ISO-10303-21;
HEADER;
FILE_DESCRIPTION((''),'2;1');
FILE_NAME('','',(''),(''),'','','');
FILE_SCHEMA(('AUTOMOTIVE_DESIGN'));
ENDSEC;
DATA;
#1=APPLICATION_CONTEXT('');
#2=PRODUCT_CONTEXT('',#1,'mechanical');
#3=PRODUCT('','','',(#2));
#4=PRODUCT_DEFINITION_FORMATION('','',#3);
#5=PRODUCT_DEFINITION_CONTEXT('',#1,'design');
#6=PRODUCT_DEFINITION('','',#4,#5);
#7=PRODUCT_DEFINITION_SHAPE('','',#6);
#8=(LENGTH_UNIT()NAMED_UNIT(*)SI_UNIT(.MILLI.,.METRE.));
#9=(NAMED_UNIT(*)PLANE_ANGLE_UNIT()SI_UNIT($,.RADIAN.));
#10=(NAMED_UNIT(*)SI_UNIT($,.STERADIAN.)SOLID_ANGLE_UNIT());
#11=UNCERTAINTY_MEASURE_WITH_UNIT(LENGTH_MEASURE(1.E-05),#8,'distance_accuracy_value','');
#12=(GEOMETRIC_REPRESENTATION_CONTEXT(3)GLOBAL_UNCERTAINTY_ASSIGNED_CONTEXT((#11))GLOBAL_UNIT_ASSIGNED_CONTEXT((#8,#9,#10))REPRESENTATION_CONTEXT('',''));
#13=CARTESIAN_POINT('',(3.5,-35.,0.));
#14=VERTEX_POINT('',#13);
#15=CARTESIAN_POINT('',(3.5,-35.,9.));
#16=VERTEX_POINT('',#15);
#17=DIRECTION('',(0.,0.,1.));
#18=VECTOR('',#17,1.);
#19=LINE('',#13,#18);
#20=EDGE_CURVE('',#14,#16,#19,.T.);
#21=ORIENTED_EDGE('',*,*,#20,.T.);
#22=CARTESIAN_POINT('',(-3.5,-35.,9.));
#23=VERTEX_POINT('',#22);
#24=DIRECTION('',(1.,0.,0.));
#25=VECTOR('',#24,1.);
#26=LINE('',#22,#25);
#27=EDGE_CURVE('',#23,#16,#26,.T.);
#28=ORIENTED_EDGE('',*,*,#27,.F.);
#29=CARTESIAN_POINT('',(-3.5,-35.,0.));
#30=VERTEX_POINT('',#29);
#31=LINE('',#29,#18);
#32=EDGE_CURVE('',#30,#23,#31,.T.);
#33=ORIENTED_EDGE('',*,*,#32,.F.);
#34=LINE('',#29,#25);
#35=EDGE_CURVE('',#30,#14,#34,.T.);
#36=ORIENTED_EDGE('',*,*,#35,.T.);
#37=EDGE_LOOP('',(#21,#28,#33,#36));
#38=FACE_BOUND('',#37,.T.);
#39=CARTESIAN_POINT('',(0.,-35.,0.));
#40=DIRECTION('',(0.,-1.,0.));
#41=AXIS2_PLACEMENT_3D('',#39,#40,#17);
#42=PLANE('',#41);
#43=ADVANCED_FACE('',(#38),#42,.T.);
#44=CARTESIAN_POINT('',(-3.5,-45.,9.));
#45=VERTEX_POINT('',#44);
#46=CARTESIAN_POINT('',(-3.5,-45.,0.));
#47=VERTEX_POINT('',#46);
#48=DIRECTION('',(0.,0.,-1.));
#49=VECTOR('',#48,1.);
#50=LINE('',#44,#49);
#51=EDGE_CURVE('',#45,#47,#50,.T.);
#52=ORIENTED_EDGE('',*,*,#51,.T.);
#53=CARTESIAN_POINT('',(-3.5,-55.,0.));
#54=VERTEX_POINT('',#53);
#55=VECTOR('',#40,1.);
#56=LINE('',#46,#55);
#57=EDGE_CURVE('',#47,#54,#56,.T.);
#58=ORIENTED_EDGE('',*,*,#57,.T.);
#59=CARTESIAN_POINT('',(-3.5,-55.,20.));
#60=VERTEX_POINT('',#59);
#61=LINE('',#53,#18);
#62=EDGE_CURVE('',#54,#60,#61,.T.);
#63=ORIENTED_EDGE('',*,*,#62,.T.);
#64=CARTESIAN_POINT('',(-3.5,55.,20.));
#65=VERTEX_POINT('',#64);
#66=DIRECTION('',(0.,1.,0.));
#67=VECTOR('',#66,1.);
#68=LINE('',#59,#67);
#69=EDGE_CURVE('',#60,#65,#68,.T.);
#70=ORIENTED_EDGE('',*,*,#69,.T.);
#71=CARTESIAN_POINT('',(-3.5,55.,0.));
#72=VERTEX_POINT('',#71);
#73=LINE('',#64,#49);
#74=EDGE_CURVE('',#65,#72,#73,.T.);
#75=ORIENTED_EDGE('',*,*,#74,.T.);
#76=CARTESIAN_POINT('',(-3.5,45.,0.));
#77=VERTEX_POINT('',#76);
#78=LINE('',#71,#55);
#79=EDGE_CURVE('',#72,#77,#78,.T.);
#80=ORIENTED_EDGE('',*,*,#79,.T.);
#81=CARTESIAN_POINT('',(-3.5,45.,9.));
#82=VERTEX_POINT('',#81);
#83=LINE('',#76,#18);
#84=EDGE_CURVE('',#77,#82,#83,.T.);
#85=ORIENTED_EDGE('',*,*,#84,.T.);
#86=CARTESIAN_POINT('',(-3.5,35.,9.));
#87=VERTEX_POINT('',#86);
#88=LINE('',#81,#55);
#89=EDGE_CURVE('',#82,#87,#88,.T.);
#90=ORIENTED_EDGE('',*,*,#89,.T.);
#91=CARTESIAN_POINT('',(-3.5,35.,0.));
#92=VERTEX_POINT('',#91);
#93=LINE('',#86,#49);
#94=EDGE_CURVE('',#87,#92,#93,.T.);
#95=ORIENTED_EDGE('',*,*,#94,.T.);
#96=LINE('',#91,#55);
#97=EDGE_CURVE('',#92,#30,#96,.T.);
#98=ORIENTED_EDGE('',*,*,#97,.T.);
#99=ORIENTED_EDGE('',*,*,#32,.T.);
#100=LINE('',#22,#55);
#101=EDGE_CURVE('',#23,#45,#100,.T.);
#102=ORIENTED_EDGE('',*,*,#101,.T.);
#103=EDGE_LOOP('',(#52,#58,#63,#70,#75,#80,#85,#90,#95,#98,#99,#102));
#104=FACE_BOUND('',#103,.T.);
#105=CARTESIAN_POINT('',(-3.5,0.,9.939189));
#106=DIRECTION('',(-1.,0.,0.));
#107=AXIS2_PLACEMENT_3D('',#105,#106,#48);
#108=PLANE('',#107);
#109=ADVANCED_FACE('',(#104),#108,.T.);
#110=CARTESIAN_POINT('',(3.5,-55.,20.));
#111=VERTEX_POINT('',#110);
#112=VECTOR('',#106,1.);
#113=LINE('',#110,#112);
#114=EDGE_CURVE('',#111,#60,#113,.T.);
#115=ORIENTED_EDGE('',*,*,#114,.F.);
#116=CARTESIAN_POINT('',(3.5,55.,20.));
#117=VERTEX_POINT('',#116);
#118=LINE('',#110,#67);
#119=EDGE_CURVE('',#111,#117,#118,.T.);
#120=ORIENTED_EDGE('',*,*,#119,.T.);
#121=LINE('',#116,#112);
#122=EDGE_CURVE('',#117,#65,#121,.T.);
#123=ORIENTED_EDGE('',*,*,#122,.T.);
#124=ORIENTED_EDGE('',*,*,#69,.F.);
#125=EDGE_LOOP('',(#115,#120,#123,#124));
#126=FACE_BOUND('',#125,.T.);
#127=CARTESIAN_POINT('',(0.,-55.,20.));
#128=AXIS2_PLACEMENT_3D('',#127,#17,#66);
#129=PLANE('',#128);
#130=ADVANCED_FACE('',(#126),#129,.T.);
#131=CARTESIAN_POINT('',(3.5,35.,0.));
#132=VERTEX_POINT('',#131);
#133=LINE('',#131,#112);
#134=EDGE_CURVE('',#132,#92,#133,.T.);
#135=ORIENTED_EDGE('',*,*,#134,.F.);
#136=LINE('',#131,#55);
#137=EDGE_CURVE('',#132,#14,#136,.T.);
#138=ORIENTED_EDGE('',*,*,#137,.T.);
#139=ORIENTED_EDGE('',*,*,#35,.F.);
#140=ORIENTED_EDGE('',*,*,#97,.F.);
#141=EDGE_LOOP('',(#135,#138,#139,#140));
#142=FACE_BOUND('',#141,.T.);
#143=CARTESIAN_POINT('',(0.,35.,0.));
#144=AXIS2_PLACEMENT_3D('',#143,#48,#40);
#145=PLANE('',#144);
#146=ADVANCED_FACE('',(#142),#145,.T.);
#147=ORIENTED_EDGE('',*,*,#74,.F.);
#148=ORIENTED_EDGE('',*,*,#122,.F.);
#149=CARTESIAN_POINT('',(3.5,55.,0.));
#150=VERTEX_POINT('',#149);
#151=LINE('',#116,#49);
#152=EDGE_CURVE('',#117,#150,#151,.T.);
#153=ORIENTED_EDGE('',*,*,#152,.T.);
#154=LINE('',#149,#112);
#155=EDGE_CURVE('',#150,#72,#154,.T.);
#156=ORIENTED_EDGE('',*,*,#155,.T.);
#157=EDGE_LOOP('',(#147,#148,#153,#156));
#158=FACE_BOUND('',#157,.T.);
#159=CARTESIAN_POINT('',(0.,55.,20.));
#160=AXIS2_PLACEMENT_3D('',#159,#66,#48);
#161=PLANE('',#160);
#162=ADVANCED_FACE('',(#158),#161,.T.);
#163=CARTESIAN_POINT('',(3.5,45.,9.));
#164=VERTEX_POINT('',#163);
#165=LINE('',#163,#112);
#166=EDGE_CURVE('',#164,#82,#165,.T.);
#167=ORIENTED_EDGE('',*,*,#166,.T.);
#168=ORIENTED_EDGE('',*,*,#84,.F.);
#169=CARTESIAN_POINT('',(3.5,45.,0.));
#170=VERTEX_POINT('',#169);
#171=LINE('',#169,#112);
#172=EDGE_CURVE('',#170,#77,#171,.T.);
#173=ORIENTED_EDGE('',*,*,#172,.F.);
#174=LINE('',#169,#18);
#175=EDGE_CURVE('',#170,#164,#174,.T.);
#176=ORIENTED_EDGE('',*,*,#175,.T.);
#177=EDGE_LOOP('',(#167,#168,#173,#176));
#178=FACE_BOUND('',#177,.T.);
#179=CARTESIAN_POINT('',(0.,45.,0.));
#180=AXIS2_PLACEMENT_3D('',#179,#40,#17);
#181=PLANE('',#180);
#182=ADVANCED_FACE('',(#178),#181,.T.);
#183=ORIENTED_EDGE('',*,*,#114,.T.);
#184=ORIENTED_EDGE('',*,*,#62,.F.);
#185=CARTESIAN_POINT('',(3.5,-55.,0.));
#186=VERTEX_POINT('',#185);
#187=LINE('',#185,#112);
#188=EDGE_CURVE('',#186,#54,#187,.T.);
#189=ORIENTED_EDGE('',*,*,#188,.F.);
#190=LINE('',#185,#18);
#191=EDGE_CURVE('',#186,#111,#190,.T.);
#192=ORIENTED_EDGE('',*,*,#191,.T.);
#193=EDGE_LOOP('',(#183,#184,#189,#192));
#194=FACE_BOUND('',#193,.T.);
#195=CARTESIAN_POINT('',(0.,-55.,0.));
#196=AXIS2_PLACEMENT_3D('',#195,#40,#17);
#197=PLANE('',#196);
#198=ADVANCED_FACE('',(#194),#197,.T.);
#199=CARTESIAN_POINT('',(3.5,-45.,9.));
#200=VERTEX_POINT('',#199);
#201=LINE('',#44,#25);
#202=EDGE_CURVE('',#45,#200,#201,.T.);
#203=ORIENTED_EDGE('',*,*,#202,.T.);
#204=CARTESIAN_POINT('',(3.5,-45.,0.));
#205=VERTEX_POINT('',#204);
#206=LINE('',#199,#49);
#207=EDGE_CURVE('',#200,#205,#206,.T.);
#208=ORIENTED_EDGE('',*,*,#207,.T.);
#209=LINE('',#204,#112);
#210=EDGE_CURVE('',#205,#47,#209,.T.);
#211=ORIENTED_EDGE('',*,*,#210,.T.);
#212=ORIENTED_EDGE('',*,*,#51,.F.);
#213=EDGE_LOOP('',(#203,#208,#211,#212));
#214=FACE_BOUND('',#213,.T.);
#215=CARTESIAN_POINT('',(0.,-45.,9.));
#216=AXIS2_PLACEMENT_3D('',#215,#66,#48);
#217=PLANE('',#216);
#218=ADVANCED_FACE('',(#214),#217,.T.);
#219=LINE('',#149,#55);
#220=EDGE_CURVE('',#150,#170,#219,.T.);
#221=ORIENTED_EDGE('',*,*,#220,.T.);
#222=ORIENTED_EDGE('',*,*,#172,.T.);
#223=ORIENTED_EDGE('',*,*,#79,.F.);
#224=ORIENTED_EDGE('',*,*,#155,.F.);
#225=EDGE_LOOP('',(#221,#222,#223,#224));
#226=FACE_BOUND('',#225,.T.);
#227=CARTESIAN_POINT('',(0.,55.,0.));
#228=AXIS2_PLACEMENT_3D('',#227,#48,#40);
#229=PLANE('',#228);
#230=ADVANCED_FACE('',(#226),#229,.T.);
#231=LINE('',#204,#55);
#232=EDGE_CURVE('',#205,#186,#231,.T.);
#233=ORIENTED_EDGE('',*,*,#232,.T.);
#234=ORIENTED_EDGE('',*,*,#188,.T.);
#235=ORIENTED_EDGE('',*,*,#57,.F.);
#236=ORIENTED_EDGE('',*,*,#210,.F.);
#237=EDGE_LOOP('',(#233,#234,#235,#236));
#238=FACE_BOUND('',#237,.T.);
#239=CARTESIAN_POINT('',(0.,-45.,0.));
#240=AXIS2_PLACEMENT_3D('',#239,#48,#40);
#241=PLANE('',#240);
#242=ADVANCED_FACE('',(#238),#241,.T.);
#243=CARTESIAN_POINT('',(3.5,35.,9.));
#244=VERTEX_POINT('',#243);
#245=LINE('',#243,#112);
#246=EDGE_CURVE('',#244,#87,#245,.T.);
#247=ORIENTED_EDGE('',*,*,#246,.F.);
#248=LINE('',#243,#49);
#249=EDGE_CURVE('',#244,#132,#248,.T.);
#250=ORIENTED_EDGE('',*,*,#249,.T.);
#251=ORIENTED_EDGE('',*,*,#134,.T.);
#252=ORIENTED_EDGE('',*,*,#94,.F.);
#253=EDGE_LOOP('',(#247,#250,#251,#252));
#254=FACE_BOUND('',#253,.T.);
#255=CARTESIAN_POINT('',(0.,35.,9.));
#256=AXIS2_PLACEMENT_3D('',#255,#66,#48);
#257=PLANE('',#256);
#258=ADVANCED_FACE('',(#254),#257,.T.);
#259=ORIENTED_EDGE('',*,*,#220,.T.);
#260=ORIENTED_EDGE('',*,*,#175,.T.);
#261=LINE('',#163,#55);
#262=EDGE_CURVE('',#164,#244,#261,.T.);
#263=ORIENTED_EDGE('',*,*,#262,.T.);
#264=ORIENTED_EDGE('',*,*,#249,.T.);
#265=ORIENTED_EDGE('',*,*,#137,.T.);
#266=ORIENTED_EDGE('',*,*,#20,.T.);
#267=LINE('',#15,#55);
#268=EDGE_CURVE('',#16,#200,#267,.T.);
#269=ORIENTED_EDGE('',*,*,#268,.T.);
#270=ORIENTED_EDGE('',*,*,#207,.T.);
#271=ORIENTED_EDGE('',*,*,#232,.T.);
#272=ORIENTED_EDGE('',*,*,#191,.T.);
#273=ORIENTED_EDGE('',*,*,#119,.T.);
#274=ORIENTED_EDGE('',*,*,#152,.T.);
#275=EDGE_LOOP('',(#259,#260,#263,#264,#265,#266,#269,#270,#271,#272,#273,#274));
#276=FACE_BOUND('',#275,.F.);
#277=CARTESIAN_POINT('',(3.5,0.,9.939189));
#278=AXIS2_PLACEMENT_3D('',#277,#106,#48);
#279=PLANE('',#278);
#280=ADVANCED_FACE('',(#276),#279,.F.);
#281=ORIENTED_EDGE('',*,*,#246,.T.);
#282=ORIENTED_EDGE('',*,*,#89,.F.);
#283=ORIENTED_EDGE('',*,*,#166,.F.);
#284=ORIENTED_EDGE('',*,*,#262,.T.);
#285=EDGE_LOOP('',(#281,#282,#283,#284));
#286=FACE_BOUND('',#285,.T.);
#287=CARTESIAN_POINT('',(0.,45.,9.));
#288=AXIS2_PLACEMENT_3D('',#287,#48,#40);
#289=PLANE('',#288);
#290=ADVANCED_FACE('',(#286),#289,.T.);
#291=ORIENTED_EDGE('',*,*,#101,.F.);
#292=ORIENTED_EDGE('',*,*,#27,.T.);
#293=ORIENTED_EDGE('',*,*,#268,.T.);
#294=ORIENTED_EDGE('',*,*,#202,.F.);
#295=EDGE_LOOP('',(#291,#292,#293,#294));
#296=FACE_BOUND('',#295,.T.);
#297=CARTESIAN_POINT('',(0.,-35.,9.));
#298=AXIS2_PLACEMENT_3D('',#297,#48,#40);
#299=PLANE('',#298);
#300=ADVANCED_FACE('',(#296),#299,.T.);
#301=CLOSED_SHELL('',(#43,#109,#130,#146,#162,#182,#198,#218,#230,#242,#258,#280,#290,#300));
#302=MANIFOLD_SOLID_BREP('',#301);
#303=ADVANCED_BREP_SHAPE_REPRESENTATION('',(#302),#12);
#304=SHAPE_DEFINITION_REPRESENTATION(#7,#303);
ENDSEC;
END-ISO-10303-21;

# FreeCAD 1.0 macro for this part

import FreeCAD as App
import Part
import Sketcher
from FreeCAD import Vector
Q = App.Units.Quantity


def add_polygon(sketch, points):
    """Adds a closed chain of lines whose ends are joined by coincident constraints."""
    first, n = sketch.GeometryCount, len(points)
    for a, b in zip(points, points[1:] + points[:1]):
        sketch.addGeometry(Part.LineSegment(App.Vector(*a, 0), App.Vector(*b, 0)), False)
    for i in range(n):
        sketch.addConstraint(Sketcher.Constraint("Coincident", first + i, 2, first + (i + 1) % n, 1))

doc = App.newDocument("Part")
body = doc.addObject("PartDesign::Body", "Body")

# Sketch on YZ plane
sketch1 = body.newObject("Sketcher::SketchObject", "Sketch")
sketch1.AttachmentSupport = (doc.getObject("YZ_Plane"), [""])
sketch1.MapMode = "FlatFace"
add_polygon(sketch1, [(-45, 0), (-45, 9), (-35, 9), (-35, 0), (35, 0), (35, 9), (45, 9), (45, 0), (55, 0), (55, 20), (-55, 20), (-55, 0)])  # lines 0-11
sketch1.addConstraint([
    Sketcher.Constraint("Vertical", 0),
    Sketcher.Constraint("Horizontal", 1),
    Sketcher.Constraint("Vertical", 2),
    Sketcher.Constraint("Horizontal", 3),
    Sketcher.Constraint("Vertical", 4),
    Sketcher.Constraint("Horizontal", 5),
    Sketcher.Constraint("Vertical", 6),
    Sketcher.Constraint("Horizontal", 7),
    Sketcher.Constraint("Vertical", 8),
    Sketcher.Constraint("Horizontal", 9),
    Sketcher.Constraint("Vertical", 10),
    Sketcher.Constraint("Horizontal", 11),
    Sketcher.Constraint("Symmetric", 2, 2, 3, 2, -1, 1),
    Sketcher.Constraint("Symmetric", 7, 2, 10, 2, -1, 1),
    Sketcher.Constraint("Symmetric", 0, 2, 5, 2, -2),
    Sketcher.Constraint("PointOnObject", 6, 2, -1),
    Sketcher.Constraint("Equal", 5, 7),
    Sketcher.Constraint("DistanceX", 1, 1, 1, 2, Q("10 mm")),
    Sketcher.Constraint("DistanceX", 3, 1, 3, 2, Q("70 mm")),
    Sketcher.Constraint("DistanceY", 0, 1, 0, 2, Q("9 mm")),
    Sketcher.Constraint("DistanceY", 8, 1, 8, 2, Q("20 mm")),
])
pad1 = body.newObject("PartDesign::Pad", "Pad")
pad1.Profile = sketch1
pad1.Length = 7
pad1.Midplane = True

doc.recompute()
